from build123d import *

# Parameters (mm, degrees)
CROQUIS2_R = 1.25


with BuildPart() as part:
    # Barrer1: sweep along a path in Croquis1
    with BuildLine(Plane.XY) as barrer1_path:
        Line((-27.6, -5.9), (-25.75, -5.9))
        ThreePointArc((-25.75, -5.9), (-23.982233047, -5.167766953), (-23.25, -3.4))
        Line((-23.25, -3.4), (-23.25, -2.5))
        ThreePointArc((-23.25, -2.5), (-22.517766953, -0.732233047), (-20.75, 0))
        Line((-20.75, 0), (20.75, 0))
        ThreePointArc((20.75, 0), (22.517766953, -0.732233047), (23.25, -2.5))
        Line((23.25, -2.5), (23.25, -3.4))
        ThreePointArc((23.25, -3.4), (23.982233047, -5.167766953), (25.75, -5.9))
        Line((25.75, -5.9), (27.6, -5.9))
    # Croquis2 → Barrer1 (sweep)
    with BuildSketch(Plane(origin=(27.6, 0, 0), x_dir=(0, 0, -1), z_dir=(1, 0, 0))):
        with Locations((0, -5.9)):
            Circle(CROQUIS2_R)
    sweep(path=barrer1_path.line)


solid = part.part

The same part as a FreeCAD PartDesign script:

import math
import FreeCAD as App
import Part
import Sketcher
Q = App.Units.Quantity

doc = App.newDocument("Part")
body = doc.addObject("PartDesign::Body", "Body")

# Sketch on YZ plane
sketch1 = body.newObject("Sketcher::SketchObject", "Sketch")
sketch1.AttachmentSupport = (doc.getObject("YZ_Plane"), [""])
sketch1.MapMode = "FlatFace"
sketch1.AttachmentOffset = App.Placement(App.Vector(0, 0, 27.6), App.Rotation())
sketch1.addGeometry(Part.Circle(App.Vector(-5.9, 0, 0), App.Vector(0, 0, 1), 1.2), False)
sketch1.addConstraint([
    Sketcher.Constraint("PointOnObject", 0, 3, -1),
    Sketcher.Constraint("Diameter", 0, Q("2.5 mm")),
    Sketcher.Constraint("DistanceX", 0, 3, -1, 1, Q("5.9 mm")),
])

# Sketch on XY plane
sketch2 = body.newObject("Sketcher::SketchObject", "Sketch001")
sketch2.AttachmentSupport = (doc.getObject("XY_Plane"), [""])
sketch2.MapMode = "FlatFace"
sketch2.addGeometry([
    Part.LineSegment(App.Vector(-27.6, -5.9, 0), App.Vector(-25.8, -5.9, 0)),  # 0
    Part.ArcOfCircle(Part.Circle(App.Vector(-25.8, -3.4, 0), App.Vector(0, 0, 1), 2.5), math.radians(-90), math.radians(0)),  # 1
    Part.LineSegment(App.Vector(-23.2, -3.4, 0), App.Vector(-23.2, -2.5, 0)),  # 2
    Part.ArcOfCircle(Part.Circle(App.Vector(-20.8, -2.5, 0), App.Vector(0, 0, 1), 2.5), math.radians(90), math.radians(180)),  # 3
    Part.LineSegment(App.Vector(-20.8, 0, 0), App.Vector(20.8, 0, 0)),  # 4
    Part.ArcOfCircle(Part.Circle(App.Vector(20.8, -2.5, 0), App.Vector(0, 0, 1), 2.5), math.radians(0), math.radians(90)),  # 5
    Part.LineSegment(App.Vector(23.2, -2.5, 0), App.Vector(23.2, -3.4, 0)),  # 6
    Part.ArcOfCircle(Part.Circle(App.Vector(25.8, -3.4, 0), App.Vector(0, 0, 1), 2.5), math.radians(180), math.radians(270)),  # 7
    Part.LineSegment(App.Vector(25.8, -5.9, 0), App.Vector(27.6, -5.9, 0)),  # 8
], False)
sketch2.addConstraint([
    Sketcher.Constraint("Tangent", 0, 2, 1, 1),
    Sketcher.Constraint("Tangent", 1, 2, 2, 1),
    Sketcher.Constraint("Tangent", 2, 2, 3, 2),
    Sketcher.Constraint("Tangent", 3, 1, 4, 1),
    Sketcher.Constraint("Tangent", 4, 2, 5, 2),
    Sketcher.Constraint("Tangent", 5, 1, 6, 1),
    Sketcher.Constraint("Tangent", 6, 2, 7, 1),
    Sketcher.Constraint("Tangent", 7, 2, 8, 1),
    Sketcher.Constraint("Horizontal", 0),
    Sketcher.Constraint("Vertical", 2),
    Sketcher.Constraint("Horizontal", 4),
    Sketcher.Constraint("Vertical", 6),
    Sketcher.Constraint("Horizontal", 8),
    Sketcher.Constraint("Equal", 1, 3),
    Sketcher.Constraint("Equal", 3, 5),
    Sketcher.Constraint("Equal", 5, 7),
    Sketcher.Constraint("Symmetric", 3, 1, 4, 2, -1, 1),
    Sketcher.Constraint("Symmetric", 0, 1, 8, 2, -2),
    Sketcher.Constraint("Radius", 1, Q("2.5 mm")),
    Sketcher.Constraint("DistanceX", 4, 1, 4, 2, Q("41.5 mm")),
    Sketcher.Constraint("DistanceY", 2, 1, 2, 2, Q("0.9 mm")),
    Sketcher.Constraint("DistanceX", 0, 1, 0, 2, Q("1.85 mm")),
])
doc.recompute()

additivepipe = body.newObject("PartDesign::AdditivePipe", "AdditivePipe")
additivepipe.Profile = sketch1
additivepipe.Spine = (sketch2, ["Edge1", "Edge2", "Edge3", "Edge4", "Edge5", "Edge6", "Edge7", "Edge8", "Edge9"])

doc.recompute()
